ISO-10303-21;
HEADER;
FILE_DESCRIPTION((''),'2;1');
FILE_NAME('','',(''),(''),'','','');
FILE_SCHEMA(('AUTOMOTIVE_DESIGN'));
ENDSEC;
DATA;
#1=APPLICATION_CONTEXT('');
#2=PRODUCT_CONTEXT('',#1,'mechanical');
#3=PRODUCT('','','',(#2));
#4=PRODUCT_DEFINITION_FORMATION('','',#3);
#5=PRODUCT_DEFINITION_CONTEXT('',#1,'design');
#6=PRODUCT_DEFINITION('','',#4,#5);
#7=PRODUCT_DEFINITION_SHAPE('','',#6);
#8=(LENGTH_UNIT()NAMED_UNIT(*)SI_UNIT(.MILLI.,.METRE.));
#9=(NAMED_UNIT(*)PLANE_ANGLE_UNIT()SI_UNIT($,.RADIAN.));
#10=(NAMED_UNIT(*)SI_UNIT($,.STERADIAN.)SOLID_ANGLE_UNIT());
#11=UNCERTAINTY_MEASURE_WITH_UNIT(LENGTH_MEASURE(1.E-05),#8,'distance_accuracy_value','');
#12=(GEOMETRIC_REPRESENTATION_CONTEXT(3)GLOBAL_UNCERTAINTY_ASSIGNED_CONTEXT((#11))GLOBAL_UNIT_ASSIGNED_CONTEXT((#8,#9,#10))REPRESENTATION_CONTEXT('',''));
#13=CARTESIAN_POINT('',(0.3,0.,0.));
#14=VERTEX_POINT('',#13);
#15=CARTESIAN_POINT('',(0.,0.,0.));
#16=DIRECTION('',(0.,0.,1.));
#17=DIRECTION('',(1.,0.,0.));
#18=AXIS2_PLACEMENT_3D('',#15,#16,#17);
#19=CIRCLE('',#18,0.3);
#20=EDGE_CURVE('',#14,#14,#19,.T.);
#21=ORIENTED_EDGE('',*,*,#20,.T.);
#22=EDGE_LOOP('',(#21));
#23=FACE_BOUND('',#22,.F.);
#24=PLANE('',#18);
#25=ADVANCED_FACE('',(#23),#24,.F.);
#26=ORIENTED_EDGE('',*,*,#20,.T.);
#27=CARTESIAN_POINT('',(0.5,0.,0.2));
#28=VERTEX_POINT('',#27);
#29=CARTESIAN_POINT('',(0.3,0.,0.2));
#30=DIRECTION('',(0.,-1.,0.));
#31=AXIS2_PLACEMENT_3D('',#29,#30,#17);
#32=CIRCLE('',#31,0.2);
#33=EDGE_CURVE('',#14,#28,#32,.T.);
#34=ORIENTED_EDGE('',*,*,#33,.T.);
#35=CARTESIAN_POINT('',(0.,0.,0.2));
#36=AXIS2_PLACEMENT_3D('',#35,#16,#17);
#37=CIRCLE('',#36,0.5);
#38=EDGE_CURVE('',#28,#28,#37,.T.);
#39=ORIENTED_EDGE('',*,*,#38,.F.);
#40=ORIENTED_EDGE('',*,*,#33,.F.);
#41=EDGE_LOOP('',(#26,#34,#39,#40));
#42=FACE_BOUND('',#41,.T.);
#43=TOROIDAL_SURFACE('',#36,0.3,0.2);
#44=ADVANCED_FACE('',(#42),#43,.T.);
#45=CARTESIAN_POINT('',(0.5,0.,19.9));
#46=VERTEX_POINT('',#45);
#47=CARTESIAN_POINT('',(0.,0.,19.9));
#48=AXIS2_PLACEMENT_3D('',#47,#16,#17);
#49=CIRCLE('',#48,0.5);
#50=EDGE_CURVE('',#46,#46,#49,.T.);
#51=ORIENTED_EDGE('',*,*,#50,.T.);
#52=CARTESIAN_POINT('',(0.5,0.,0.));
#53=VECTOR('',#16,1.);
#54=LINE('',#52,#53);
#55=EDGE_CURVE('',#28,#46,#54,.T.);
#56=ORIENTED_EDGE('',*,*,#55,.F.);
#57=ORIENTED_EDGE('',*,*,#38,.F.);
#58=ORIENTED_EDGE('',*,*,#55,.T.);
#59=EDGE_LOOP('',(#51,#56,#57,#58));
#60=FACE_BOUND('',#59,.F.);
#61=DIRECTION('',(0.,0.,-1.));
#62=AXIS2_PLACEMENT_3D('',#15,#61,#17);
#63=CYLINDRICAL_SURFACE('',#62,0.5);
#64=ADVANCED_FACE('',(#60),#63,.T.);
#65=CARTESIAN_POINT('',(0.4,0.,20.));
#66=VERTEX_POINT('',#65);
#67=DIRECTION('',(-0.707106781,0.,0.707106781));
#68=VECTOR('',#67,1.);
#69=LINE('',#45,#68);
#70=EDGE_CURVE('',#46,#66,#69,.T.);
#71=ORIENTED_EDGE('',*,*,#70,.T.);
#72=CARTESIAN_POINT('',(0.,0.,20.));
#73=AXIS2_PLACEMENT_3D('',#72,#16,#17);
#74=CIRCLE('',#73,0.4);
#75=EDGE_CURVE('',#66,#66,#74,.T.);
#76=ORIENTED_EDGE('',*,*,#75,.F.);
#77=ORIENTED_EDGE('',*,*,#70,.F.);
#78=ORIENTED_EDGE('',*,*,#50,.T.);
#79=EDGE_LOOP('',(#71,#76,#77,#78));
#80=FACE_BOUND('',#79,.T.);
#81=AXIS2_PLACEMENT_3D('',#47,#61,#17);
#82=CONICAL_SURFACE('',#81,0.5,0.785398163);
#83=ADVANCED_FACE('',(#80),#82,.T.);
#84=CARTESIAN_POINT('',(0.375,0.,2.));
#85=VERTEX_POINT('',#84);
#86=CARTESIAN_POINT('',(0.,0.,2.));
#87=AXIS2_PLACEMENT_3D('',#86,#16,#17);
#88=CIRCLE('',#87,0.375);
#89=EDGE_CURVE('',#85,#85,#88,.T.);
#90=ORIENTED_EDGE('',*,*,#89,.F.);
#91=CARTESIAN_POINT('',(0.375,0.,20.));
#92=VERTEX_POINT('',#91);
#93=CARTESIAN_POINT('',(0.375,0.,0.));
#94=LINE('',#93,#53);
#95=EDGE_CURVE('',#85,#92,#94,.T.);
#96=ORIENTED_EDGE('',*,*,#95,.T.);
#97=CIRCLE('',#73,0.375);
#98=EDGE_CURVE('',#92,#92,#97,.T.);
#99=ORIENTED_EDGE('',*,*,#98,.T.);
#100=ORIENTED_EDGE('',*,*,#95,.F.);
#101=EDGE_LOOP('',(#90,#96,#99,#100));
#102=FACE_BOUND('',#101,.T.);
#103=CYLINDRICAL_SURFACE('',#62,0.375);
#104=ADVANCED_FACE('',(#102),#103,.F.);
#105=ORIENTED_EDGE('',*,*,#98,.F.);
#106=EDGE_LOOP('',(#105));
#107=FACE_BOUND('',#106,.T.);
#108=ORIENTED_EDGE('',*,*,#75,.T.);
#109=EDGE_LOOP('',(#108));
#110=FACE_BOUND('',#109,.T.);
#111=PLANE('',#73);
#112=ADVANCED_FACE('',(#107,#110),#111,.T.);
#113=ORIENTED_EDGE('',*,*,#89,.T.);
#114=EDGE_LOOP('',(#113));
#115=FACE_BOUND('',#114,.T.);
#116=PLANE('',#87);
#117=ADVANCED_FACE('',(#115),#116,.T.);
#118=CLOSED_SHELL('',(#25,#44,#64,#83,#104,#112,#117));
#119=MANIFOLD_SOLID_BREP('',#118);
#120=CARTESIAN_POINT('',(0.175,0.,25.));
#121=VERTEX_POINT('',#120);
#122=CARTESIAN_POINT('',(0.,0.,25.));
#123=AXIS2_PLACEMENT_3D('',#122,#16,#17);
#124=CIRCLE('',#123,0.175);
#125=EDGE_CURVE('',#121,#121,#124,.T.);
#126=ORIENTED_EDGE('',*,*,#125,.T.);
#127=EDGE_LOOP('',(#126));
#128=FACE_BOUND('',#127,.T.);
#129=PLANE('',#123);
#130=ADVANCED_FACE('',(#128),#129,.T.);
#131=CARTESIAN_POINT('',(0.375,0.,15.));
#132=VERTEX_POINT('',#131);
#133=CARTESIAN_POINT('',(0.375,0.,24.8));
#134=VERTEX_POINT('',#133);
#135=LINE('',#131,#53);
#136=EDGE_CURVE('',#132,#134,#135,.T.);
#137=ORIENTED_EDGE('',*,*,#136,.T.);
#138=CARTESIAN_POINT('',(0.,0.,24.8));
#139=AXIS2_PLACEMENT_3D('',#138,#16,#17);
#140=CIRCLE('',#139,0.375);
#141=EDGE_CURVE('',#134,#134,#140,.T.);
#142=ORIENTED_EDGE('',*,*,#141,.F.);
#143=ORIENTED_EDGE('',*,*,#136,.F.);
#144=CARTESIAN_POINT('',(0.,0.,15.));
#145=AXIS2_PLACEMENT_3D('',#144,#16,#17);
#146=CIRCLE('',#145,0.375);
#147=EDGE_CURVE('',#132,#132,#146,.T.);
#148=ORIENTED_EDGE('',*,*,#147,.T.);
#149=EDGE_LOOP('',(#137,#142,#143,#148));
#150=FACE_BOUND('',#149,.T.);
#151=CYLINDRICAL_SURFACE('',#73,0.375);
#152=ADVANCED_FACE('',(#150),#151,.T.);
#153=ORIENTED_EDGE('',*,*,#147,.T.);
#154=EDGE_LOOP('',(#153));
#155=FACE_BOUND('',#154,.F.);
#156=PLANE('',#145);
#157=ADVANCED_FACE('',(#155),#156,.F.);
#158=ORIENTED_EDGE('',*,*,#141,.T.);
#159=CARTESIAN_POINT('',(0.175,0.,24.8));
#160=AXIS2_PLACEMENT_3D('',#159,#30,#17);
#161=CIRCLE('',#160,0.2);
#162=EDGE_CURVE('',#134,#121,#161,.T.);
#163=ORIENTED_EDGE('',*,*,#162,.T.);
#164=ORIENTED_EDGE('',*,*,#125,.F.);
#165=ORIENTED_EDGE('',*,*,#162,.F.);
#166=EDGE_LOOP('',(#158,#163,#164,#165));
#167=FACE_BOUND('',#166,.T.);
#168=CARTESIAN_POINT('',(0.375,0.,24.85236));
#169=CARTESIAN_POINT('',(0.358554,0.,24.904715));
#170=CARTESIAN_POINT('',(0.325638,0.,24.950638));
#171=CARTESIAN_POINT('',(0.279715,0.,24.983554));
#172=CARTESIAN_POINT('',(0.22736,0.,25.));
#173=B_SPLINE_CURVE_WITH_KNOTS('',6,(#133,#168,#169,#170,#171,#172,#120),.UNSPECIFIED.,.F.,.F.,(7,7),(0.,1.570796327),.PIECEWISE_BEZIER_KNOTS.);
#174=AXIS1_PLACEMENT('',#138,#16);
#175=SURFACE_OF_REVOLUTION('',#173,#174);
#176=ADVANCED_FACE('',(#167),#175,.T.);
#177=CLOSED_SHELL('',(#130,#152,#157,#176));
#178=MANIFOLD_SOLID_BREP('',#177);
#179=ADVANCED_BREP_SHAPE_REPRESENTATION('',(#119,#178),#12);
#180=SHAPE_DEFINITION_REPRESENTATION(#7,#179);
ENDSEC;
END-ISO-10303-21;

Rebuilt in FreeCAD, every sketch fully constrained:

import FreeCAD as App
import Part
import Sketcher


def edges_at(feature, points):
    """Names of the edges that pass closest to the given points."""
    edges = feature.Shape.Edges
    near = lambda p: min(range(len(edges)), key=lambda i: edges[i].distToShape(Part.Vertex(*p))[0])
    return sorted({f"Edge{near(p) + 1}" for p in points})

doc = App.newDocument("Part")
body = doc.addObject("PartDesign::Body", "Body")

# Sketch on XY plane
sketch1 = body.newObject("Sketcher::SketchObject", "Sketch")
sketch1.AttachmentSupport = (doc.getObject("XY_Plane"), [""])
sketch1.MapMode = "FlatFace"
sketch1.addGeometry(Part.Circle(App.Vector(0, 0, 0), App.Vector(0, 0, 1), 0.5), False)
sketch1.addGeometry(Part.Circle(App.Vector(0, 0, 0), App.Vector(0, 0, 1), 0.375), False)
sketch1.addConstraint(Sketcher.Constraint("Coincident", 0, 3, -1, 1))
sketch1.addConstraint(Sketcher.Constraint("Coincident", 1, 3, -1, 1))
sketch1.addConstraint(Sketcher.Constraint("Diameter", 0, 1.0))
sketch1.addConstraint(Sketcher.Constraint("Diameter", 1, 0.75))
pad1 = body.newObject("PartDesign::Pad", "Pad")
pad1.Profile = sketch1
pad1.Length = 20
doc.recompute()

chamfer = body.newObject("PartDesign::Chamfer", "Chamfer")
chamfer.Base = (pad1, edges_at(pad1, [(-0.5, 0, 20)]))
chamfer.Size = 0.1

# Sketch on XY plane
sketch2 = body.newObject("Sketcher::SketchObject", "Sketch001")
sketch2.AttachmentSupport = (doc.getObject("XY_Plane"), [""])
sketch2.MapMode = "FlatFace"
sketch2.addGeometry(Part.Circle(App.Vector(0, 0, 0), App.Vector(0, 0, 1), 0.375), False)
sketch2.addConstraint(Sketcher.Constraint("Coincident", 0, 3, -1, 1))
sketch2.addConstraint(Sketcher.Constraint("Diameter", 0, 0.75))
pad2 = body.newObject("PartDesign::Pad", "Pad001")
pad2.Profile = sketch2
pad2.Length = 2
doc.recompute()

fillet = body.newObject("PartDesign::Fillet", "Fillet")
fillet.Base = (pad2, edges_at(pad2, [(-0.5, 0, 0)]))
fillet.Radius = 0.2
body2 = doc.addObject("PartDesign::Body", "Body001")

# Sketch on XY plane
sketch3 = body2.newObject("Sketcher::SketchObject", "Sketch002")
sketch3.AttachmentSupport = (doc.getObject("XY_Plane001"), [""])
sketch3.MapMode = "FlatFace"
sketch3.AttachmentOffset = App.Placement(App.Vector(0, 0, 20), App.Rotation())
sketch3.addGeometry(Part.Circle(App.Vector(0, 0, 0), App.Vector(0, 0, 1), 0.375), False)
sketch3.addConstraint(Sketcher.Constraint("Coincident", 0, 3, -1, 1))
sketch3.addConstraint(Sketcher.Constraint("Diameter", 0, 0.75))
pad3 = body2.newObject("PartDesign::Pad", "Pad002")
pad3.Profile = sketch3
pad3.Length = 10
pad3.Midplane = True
doc.recompute()

fillet2 = body2.newObject("PartDesign::Fillet", "Fillet001")
fillet2.Base = (pad3, edges_at(pad3, [(-0.375, 0, 25)]))
fillet2.Radius = 0.2

doc.recompute()
